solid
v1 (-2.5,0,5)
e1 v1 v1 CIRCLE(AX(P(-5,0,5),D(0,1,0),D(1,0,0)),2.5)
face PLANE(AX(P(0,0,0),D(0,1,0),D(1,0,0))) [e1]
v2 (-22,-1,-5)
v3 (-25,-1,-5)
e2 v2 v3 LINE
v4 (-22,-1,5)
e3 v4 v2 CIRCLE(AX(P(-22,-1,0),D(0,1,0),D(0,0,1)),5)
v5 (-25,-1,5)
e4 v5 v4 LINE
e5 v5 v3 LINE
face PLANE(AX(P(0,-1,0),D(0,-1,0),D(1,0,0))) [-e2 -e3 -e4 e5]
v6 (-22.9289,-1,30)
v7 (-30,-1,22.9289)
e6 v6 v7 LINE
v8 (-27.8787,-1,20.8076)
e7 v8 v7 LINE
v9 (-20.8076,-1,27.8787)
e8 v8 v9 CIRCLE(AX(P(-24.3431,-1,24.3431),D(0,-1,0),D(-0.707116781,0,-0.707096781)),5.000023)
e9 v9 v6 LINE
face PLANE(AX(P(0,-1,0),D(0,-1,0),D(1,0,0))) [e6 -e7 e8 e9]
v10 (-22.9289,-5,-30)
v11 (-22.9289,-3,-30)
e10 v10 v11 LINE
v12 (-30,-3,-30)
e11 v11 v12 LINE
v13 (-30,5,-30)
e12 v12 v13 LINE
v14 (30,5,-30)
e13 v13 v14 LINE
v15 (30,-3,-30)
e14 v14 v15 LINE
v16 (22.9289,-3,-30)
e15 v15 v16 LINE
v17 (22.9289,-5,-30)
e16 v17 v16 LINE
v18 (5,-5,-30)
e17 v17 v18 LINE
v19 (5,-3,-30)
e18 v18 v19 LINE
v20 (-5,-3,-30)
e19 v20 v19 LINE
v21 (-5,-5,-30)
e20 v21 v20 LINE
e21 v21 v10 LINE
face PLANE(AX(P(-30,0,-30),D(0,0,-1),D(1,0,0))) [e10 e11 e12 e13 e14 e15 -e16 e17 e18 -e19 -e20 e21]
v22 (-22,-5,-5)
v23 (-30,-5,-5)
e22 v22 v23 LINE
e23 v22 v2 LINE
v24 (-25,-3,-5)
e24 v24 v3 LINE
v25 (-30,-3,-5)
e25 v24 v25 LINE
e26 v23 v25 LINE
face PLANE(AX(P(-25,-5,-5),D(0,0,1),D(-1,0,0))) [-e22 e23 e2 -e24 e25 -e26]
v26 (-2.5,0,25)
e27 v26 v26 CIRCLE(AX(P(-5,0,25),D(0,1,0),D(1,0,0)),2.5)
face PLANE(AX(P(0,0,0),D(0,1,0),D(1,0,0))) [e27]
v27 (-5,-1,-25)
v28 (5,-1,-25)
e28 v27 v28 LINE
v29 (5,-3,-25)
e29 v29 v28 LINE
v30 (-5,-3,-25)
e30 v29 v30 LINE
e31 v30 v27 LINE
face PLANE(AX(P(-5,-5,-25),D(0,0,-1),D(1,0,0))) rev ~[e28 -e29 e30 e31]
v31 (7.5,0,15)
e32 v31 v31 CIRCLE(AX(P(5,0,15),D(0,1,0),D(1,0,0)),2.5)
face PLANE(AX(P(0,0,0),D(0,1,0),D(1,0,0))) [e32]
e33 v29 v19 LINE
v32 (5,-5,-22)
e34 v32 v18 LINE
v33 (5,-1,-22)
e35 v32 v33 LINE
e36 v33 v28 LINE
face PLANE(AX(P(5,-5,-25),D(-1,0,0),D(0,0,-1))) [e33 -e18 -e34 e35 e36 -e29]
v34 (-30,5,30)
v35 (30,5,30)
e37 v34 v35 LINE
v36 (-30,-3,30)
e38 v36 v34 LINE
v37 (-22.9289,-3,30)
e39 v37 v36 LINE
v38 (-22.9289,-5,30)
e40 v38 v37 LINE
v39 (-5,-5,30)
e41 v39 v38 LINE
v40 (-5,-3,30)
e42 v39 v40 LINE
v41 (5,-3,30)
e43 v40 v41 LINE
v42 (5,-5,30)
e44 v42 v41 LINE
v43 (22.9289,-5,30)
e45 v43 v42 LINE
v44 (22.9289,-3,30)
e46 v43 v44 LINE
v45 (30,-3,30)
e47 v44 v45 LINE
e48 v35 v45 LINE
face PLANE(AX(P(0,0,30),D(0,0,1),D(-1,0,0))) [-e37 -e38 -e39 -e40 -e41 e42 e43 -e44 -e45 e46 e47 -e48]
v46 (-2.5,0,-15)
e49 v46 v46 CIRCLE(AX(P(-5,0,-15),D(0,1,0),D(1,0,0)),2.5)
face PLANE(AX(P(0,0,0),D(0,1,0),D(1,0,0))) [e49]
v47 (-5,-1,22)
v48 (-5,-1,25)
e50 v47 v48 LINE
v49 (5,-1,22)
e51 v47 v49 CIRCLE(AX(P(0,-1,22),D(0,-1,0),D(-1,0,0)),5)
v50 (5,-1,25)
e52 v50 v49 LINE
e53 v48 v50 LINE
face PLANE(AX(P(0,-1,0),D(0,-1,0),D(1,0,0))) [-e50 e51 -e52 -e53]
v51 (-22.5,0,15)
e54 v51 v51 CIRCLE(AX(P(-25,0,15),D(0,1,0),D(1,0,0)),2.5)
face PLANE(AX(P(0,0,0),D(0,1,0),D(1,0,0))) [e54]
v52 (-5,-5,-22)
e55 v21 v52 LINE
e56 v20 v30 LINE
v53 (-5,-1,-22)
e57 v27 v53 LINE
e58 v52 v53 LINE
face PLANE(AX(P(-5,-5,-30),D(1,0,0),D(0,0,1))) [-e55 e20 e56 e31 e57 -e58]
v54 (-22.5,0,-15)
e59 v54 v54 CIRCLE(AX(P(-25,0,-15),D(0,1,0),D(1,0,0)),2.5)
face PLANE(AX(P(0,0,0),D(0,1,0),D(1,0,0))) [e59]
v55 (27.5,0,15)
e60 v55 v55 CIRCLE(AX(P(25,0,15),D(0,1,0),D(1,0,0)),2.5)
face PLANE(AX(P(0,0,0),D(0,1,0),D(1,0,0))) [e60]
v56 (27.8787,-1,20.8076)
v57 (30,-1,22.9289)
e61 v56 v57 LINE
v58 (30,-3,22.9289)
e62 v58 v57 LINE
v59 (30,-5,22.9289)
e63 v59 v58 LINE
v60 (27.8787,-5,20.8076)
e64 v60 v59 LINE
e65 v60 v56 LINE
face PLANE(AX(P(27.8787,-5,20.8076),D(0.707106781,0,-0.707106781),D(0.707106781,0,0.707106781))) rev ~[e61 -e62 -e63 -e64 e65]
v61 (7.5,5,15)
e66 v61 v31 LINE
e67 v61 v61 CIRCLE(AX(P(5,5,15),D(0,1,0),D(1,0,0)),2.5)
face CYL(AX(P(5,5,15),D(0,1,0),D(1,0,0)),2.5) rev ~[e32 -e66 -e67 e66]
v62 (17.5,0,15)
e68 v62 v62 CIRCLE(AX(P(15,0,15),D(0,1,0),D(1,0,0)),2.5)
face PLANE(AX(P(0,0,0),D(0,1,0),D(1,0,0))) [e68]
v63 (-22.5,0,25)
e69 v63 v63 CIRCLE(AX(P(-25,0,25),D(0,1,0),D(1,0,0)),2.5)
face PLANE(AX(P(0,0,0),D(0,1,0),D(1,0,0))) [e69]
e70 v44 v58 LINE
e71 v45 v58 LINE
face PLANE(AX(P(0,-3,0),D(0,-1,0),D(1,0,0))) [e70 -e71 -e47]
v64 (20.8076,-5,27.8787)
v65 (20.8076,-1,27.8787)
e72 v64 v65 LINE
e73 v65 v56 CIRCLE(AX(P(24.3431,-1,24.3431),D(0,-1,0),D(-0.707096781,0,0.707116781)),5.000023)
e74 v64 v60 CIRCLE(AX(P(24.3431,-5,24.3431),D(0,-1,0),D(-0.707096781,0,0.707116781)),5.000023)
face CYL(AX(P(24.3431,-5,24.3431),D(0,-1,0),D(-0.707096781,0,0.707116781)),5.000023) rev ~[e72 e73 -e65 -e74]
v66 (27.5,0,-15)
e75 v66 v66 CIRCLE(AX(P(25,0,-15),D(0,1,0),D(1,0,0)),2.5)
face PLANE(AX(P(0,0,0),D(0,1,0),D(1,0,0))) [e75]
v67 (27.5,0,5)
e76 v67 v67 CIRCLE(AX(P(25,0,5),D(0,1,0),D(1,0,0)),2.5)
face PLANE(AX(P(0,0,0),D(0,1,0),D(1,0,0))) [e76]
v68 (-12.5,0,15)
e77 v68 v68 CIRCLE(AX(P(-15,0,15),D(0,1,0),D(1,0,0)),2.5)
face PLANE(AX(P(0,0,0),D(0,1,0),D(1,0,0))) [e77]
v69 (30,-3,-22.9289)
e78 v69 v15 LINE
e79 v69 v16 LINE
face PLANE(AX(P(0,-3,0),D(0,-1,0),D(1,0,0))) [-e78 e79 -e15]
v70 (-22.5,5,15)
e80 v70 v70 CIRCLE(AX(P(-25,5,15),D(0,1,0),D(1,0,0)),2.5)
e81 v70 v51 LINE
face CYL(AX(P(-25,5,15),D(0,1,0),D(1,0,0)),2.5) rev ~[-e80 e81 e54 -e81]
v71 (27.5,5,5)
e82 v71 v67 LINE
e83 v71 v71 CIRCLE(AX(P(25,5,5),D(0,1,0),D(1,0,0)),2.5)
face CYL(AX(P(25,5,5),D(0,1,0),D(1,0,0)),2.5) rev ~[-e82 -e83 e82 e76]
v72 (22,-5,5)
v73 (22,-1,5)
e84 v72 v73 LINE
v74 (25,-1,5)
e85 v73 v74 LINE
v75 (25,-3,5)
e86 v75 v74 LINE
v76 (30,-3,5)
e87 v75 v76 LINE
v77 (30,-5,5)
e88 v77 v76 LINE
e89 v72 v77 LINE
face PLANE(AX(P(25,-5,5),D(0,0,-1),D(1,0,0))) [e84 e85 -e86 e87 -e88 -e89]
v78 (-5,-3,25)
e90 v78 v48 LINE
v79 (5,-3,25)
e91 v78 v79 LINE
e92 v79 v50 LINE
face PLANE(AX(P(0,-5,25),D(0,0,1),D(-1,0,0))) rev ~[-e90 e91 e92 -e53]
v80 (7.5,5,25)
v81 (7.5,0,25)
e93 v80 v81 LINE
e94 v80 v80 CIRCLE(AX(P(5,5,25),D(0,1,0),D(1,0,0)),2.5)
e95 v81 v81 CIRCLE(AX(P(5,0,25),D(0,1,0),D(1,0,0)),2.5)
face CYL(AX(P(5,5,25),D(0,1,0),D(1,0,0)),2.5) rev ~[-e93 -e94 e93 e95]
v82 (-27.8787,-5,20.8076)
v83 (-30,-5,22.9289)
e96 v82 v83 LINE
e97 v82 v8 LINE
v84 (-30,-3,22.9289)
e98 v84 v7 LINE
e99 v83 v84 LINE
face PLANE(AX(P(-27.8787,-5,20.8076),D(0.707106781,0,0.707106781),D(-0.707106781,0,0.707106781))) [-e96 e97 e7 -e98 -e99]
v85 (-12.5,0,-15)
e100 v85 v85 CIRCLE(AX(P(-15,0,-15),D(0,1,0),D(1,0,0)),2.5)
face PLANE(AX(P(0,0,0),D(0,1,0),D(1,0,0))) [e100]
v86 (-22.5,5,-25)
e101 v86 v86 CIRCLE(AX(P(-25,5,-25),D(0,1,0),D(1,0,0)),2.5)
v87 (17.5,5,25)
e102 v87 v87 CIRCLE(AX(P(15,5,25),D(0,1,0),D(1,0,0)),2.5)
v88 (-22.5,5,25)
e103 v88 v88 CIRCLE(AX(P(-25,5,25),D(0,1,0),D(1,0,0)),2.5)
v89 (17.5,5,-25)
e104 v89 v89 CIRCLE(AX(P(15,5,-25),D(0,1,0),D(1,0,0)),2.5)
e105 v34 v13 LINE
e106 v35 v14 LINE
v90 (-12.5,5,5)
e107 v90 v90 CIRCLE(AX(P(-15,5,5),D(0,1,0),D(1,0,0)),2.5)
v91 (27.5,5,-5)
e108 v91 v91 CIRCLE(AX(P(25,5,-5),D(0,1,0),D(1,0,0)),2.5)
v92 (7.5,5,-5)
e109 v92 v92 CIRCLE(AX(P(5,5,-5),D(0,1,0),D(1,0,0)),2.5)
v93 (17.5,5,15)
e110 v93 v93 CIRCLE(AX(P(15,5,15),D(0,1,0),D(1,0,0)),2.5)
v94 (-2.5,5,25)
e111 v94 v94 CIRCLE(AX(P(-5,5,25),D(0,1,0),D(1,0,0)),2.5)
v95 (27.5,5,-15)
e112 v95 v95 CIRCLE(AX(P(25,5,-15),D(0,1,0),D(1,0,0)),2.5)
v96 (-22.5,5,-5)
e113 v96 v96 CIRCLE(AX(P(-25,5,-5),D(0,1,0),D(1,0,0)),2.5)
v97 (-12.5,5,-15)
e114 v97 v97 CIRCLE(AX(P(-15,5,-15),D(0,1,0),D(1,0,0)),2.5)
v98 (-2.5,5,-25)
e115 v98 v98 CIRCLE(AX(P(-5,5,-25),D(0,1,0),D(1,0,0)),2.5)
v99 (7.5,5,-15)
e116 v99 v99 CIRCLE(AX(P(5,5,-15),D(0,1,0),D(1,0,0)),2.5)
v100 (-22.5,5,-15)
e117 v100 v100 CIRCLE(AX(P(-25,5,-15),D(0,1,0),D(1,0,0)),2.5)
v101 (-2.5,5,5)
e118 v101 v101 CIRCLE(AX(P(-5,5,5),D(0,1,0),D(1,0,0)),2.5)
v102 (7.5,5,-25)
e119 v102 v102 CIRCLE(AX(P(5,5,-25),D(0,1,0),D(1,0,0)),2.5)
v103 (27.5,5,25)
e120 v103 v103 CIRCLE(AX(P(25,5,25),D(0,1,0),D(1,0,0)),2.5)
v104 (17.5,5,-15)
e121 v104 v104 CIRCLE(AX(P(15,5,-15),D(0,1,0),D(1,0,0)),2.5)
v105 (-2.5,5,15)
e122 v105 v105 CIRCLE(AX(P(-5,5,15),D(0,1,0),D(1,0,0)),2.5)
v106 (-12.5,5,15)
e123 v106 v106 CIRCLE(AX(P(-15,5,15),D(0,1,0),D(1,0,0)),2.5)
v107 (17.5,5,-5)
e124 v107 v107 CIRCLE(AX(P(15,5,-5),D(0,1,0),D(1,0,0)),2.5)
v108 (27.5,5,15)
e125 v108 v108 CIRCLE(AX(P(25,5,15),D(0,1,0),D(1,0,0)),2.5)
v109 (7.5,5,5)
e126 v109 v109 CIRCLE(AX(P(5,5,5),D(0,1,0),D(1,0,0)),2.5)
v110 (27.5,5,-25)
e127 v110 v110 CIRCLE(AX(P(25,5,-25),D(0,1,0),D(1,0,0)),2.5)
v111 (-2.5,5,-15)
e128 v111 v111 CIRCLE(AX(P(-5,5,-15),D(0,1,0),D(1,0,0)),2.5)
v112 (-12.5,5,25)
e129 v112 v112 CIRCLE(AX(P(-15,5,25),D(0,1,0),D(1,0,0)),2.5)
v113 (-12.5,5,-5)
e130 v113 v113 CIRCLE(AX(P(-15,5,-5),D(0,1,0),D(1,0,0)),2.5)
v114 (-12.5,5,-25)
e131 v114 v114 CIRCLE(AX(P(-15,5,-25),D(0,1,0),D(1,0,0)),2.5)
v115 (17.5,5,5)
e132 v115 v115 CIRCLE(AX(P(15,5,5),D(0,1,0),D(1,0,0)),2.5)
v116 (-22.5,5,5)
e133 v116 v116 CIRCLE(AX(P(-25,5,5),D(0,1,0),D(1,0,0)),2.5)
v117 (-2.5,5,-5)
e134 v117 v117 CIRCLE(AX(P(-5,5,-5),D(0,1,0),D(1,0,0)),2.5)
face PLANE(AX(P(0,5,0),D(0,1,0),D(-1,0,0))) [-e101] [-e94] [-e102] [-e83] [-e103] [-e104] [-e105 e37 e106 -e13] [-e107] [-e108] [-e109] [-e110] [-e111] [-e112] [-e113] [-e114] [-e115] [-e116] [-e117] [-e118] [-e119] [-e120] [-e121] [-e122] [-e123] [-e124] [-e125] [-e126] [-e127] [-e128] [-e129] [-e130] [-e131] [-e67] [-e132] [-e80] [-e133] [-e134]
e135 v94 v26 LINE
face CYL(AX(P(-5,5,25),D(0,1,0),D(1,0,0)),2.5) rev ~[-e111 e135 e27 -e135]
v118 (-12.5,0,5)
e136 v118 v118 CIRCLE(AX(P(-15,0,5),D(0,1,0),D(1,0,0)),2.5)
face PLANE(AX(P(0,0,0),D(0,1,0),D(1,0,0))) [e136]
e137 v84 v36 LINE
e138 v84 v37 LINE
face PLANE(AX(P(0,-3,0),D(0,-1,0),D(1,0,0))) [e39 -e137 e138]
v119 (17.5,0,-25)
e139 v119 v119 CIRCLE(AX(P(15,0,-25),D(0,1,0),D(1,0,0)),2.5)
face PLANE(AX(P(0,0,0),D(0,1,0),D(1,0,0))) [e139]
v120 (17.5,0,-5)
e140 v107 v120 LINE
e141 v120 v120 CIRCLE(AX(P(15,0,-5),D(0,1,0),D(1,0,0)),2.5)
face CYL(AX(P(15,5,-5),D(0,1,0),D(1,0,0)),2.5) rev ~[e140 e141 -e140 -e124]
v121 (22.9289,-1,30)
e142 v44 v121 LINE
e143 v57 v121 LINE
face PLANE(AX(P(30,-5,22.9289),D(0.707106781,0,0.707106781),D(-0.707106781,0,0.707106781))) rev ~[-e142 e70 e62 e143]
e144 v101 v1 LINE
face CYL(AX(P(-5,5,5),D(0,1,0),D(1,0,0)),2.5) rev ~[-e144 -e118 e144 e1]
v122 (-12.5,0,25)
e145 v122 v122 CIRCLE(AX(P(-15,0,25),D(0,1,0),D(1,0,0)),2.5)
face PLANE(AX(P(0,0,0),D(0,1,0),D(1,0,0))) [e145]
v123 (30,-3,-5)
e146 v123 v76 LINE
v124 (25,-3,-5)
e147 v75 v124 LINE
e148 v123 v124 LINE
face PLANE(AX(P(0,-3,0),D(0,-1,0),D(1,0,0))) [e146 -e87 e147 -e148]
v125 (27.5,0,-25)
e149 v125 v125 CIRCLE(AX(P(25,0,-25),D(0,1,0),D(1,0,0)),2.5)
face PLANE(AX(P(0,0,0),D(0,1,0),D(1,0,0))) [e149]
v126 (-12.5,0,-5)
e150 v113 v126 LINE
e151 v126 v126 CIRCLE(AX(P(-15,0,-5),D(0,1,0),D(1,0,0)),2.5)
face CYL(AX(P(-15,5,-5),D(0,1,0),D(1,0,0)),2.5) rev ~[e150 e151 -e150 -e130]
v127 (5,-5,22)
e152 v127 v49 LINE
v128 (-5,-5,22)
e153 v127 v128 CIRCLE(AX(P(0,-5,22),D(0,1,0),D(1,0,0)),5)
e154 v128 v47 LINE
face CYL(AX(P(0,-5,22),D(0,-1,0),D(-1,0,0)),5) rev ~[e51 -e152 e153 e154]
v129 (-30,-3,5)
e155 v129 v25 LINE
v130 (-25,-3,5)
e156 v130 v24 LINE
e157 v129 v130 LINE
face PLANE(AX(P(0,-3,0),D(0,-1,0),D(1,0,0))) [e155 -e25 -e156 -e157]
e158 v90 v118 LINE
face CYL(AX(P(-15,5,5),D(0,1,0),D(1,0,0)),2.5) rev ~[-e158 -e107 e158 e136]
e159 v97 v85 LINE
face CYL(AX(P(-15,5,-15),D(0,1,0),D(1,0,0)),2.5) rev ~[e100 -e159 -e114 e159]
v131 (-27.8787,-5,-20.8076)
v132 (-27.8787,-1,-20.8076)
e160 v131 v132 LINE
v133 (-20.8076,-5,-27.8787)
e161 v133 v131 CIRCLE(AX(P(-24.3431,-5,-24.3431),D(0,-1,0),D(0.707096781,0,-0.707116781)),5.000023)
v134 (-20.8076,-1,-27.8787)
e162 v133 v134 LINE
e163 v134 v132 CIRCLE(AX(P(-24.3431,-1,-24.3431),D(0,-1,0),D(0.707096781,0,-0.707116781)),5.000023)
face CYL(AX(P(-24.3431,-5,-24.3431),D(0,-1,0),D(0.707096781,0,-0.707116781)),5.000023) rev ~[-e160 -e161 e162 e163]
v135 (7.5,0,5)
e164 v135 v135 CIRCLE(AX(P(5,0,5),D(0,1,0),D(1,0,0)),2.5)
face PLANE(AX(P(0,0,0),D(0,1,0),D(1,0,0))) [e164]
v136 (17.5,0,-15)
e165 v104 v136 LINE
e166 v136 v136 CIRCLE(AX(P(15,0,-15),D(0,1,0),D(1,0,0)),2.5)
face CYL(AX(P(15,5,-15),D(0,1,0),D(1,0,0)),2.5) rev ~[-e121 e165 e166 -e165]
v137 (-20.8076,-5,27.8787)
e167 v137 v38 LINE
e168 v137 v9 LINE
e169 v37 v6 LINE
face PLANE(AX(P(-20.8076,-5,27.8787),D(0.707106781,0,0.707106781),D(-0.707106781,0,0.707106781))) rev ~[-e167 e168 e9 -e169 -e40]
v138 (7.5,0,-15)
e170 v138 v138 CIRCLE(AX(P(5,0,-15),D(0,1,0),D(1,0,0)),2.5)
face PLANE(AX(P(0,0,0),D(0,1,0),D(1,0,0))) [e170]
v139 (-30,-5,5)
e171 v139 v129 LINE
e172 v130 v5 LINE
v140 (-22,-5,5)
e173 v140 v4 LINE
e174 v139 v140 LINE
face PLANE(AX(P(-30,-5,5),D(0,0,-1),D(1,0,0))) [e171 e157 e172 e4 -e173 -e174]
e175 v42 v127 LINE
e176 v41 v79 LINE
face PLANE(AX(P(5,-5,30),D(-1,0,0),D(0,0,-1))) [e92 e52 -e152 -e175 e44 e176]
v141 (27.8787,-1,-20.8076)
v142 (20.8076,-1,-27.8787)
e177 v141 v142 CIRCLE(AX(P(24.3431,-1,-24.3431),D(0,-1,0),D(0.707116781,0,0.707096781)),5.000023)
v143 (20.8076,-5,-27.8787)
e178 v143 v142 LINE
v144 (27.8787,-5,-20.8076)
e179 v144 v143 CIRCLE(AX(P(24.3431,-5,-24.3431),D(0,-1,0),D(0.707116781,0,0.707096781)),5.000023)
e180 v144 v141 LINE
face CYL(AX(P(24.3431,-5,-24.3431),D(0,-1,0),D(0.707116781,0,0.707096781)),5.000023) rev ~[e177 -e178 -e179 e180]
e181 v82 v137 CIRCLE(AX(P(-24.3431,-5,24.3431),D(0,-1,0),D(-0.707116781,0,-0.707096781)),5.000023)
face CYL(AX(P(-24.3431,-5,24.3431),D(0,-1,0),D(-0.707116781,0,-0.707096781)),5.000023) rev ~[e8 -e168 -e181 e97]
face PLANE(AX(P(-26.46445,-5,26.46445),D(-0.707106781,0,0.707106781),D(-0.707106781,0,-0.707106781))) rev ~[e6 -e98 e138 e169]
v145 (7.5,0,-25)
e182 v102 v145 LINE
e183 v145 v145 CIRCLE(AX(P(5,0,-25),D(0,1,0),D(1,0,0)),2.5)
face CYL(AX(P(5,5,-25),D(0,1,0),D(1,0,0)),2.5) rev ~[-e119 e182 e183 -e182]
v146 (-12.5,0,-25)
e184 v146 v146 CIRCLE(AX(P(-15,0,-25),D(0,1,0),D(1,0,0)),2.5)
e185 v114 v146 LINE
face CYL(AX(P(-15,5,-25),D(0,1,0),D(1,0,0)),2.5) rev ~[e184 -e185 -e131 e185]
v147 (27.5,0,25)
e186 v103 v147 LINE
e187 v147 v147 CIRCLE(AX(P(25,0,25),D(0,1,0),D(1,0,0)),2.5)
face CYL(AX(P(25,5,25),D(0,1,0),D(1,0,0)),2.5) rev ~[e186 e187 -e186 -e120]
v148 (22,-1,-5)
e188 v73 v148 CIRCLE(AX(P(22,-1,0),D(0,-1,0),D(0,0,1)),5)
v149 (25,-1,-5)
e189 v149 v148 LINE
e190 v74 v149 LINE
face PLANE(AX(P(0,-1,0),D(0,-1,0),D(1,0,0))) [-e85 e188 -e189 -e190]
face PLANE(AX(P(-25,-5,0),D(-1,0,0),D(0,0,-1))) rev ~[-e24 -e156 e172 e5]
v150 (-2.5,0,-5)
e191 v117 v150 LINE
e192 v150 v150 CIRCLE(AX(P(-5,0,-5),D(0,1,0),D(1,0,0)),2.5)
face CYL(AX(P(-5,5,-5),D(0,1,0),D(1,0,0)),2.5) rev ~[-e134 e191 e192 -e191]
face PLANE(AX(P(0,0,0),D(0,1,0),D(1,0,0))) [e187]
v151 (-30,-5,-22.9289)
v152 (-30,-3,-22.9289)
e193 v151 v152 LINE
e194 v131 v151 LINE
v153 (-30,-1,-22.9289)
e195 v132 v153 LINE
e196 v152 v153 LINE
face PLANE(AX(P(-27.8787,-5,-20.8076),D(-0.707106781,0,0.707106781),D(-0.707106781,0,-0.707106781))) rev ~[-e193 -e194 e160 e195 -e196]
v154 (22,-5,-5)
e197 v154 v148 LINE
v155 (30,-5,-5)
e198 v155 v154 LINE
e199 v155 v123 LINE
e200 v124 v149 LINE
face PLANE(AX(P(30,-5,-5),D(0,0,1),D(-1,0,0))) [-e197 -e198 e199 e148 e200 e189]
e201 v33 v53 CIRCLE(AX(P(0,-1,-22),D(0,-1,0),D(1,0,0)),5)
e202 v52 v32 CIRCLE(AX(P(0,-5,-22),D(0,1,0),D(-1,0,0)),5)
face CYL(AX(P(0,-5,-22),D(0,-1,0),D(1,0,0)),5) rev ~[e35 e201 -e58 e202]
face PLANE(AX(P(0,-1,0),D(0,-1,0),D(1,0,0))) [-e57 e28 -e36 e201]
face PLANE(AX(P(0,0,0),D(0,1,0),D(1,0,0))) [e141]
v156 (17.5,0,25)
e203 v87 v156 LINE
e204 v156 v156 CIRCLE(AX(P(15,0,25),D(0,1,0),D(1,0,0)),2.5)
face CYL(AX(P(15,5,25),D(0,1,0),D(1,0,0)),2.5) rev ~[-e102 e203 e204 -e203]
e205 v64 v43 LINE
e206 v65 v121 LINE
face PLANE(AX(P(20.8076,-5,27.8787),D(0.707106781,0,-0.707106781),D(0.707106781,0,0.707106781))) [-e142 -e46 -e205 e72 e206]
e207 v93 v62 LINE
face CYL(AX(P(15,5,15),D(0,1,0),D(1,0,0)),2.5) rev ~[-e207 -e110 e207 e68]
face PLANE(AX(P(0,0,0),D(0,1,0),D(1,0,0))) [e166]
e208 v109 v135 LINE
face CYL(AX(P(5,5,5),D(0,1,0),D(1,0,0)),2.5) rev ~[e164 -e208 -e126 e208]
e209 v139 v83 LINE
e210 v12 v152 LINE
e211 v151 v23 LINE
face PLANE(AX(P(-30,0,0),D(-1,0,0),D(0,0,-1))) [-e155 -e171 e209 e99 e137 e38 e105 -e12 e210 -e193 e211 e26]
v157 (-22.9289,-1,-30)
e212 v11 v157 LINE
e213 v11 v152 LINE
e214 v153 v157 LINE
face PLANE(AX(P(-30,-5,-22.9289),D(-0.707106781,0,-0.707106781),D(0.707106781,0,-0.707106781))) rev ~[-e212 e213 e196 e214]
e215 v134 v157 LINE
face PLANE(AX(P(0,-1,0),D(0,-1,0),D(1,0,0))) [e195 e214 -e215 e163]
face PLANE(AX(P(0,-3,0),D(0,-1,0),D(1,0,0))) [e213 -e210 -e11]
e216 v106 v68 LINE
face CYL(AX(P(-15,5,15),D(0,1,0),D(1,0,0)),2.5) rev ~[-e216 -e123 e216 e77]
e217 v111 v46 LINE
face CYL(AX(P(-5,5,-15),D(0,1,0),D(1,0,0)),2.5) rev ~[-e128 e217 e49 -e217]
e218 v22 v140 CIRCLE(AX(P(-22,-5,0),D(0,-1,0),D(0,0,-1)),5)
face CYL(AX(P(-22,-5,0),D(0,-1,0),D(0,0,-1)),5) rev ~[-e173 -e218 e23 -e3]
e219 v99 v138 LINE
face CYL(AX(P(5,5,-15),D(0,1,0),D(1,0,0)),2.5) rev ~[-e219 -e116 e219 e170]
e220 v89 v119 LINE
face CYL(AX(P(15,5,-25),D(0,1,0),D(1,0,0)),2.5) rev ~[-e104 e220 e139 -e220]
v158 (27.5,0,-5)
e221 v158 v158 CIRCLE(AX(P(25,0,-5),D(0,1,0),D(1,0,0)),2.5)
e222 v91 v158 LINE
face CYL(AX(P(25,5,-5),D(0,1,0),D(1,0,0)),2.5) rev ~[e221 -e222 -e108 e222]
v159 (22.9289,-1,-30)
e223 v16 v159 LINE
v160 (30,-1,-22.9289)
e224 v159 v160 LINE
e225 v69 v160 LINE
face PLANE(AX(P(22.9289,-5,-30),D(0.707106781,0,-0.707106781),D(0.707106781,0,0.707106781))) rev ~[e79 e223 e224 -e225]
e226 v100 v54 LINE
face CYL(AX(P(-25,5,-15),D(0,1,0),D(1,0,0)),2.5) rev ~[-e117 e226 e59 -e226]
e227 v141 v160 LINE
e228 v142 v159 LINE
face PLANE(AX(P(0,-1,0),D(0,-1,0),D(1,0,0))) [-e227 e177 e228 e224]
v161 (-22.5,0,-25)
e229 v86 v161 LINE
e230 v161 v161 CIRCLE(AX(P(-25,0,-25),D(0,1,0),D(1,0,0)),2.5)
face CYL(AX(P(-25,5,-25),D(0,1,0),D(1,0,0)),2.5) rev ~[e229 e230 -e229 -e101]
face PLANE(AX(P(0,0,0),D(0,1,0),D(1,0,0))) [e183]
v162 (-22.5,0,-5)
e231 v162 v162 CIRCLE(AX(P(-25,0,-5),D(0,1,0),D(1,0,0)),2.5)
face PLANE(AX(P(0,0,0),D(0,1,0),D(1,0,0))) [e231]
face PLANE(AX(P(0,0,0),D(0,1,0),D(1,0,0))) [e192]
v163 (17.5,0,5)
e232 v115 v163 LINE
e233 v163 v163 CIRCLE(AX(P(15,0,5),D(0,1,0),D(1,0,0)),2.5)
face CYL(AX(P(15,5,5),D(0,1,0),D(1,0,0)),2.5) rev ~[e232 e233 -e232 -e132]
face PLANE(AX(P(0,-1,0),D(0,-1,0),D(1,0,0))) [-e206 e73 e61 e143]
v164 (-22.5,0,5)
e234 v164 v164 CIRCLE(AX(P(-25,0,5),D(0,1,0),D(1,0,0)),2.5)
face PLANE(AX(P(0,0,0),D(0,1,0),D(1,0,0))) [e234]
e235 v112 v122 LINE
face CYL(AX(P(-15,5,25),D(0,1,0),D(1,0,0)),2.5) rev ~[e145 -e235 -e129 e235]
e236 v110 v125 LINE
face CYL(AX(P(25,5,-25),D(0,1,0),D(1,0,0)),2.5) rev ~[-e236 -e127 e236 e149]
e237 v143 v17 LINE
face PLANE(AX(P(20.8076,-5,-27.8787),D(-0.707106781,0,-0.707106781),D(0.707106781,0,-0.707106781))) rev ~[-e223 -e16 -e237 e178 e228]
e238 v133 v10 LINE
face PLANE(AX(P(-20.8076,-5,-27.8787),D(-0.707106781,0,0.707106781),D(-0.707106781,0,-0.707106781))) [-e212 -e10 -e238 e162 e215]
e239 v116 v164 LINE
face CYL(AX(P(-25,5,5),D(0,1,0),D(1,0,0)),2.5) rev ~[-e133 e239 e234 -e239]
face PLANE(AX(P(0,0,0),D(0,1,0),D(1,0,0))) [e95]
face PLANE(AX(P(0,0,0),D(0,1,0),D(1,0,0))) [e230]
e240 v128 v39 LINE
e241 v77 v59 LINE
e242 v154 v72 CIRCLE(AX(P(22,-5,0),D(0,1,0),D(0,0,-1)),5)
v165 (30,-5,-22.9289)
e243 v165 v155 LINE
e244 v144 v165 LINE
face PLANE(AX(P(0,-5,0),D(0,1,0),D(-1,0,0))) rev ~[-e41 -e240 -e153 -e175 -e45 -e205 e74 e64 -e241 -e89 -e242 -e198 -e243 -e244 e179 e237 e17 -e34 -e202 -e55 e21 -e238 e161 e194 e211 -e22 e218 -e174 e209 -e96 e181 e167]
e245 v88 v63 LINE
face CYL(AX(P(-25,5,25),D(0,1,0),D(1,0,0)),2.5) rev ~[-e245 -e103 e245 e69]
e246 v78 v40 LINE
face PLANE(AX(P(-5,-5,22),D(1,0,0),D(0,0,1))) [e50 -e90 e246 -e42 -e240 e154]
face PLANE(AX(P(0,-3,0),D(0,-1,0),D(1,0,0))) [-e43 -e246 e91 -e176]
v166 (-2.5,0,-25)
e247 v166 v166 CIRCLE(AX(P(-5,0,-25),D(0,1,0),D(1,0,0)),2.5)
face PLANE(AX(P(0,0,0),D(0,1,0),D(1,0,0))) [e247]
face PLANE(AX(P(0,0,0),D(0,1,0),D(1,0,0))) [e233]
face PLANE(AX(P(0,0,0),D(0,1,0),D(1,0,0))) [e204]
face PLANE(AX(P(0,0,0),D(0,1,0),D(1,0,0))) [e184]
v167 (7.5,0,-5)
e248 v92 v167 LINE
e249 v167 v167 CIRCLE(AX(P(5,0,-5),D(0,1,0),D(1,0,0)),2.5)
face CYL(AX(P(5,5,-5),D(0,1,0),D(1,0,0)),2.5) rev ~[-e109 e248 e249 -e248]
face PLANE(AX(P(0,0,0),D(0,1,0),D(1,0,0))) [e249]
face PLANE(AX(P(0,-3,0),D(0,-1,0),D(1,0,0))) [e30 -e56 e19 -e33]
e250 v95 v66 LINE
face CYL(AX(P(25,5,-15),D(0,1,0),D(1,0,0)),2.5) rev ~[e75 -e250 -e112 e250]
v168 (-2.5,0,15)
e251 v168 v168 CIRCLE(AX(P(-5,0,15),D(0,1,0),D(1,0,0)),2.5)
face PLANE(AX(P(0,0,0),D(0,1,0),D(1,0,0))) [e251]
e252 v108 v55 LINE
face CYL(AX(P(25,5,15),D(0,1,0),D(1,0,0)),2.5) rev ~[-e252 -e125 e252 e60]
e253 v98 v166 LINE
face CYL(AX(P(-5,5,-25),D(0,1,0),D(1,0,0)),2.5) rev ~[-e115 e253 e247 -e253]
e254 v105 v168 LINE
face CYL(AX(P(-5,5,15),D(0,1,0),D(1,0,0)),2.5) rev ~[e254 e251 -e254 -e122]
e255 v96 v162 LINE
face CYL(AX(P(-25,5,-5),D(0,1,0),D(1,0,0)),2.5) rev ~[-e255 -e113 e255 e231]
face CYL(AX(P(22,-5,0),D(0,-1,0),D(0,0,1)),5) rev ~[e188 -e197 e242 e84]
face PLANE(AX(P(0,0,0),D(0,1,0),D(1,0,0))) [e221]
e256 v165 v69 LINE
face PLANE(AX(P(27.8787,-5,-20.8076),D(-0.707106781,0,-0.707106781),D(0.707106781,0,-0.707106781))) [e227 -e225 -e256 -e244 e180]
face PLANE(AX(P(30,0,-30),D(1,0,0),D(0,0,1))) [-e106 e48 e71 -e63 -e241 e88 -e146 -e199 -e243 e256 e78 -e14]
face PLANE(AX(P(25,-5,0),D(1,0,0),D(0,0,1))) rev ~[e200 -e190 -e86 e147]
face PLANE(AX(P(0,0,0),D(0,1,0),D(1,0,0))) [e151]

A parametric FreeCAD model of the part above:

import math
import FreeCAD as App
import Part
import Sketcher

doc = App.newDocument("Part")
params = doc.addObject("Spreadsheet::Sheet", "Params")
for row, (alias, value) in enumerate([
    ("sketch1_width", "60 mm"),
    ("pad1_length", "10 mm"),
    ("sketch2_width", "5 mm"),
    ("sketch2_width2", "10 mm"),
    ("sketch2_length", "10 mm"),
    ("pocket1_length", "2 mm"),
    ("sketch3_radius", "5 mm"),
    ("sketch3_width", "3 mm"),
    ("sketch3_length", "3 mm"),
    ("pocket2_length", "4 mm"),
    ("sketch4_diameter", "5 mm"),
    ("pocket3_length", "5 mm"),
], start=1):
    params.set(f"A{row}", alias)
    params.set(f"B{row}", "=" + value)
    params.setAlias(f"B{row}", alias)

body = doc.addObject("PartDesign::Body", "Body")

# Sketch on XZ plane
sketch1 = body.newObject("Sketcher::SketchObject", "Sketch")
sketch1.AttachmentSupport = (doc.getObject("XZ_Plane"), [""])
sketch1.MapMode = "FlatFace"
sketch1.addGeometry([
    Part.LineSegment(App.Vector(-30, -30, 0), App.Vector(-30, 30, 0)),
    Part.LineSegment(App.Vector(-30, 30, 0), App.Vector(30, 30, 0)),
    Part.LineSegment(App.Vector(30, 30, 0), App.Vector(30, -30, 0)),
    Part.LineSegment(App.Vector(30, -30, 0), App.Vector(-30, -30, 0)),
], False)
sketch1.addConstraint([
    Sketcher.Constraint("Coincident", 0, 2, 1, 1),
    Sketcher.Constraint("Coincident", 1, 2, 2, 1),
    Sketcher.Constraint("Coincident", 2, 2, 3, 1),
    Sketcher.Constraint("Coincident", 3, 2, 0, 1),
    Sketcher.Constraint("Vertical", 0),
    Sketcher.Constraint("Horizontal", 1),
    Sketcher.Constraint("Vertical", 2),
    Sketcher.Constraint("Horizontal", 3),
    Sketcher.Constraint("Symmetric", 0, 2, 2, 2, -1, 1),
    Sketcher.Constraint("Equal", 3, 0),
    Sketcher.Constraint("DistanceX", 1, 1, 1, 2, 60.0),
])
sketch1.setExpression("Constraints[10]", "Params.sketch1_width")
pad1 = body.newObject("PartDesign::Pad", "Pad")
pad1.Profile = sketch1
pad1.setExpression("Length", "Params.pad1_length")
pad1.Midplane = True

# Sketch on XZ plane
sketch2 = body.newObject("Sketcher::SketchObject", "Sketch001")
sketch2.AttachmentSupport = (doc.getObject("XZ_Plane"), [""])
sketch2.MapMode = "FlatFace"
sketch2.AttachmentOffset = App.Placement(App.Vector(0, 0, 5), App.Rotation())
sketch2.addGeometry([
    Part.LineSegment(App.Vector(-30, 30, 0), App.Vector(-30, 23, 0)),  # 0
    Part.LineSegment(App.Vector(-30, 23, 0), App.Vector(-23, 30, 0)),  # 1
    Part.LineSegment(App.Vector(-23, 30, 0), App.Vector(-30, 30, 0)),  # 2
    Part.LineSegment(App.Vector(30, 23, 0), App.Vector(30, 30, 0)),  # 3
    Part.LineSegment(App.Vector(30, 30, 0), App.Vector(23, 30, 0)),  # 4
    Part.LineSegment(App.Vector(23, 30, 0), App.Vector(30, 23, 0)),  # 5
    Part.LineSegment(App.Vector(-23, -30, 0), App.Vector(-30, -23, 0)),  # 6
    Part.LineSegment(App.Vector(-30, -23, 0), App.Vector(-30, -30, 0)),  # 7
    Part.LineSegment(App.Vector(-30, -30, 0), App.Vector(-23, -30, 0)),  # 8
    Part.LineSegment(App.Vector(-30, -5, 0), App.Vector(-25, -5, 0)),  # 9
    Part.LineSegment(App.Vector(-25, -5, 0), App.Vector(-25, 5, 0)),  # 10
    Part.LineSegment(App.Vector(-25, 5, 0), App.Vector(-30, 5, 0)),  # 11
    Part.LineSegment(App.Vector(-30, 5, 0), App.Vector(-30, -5, 0)),  # 12
    Part.LineSegment(App.Vector(-5, -25, 0), App.Vector(-5, -30, 0)),  # 13
    Part.LineSegment(App.Vector(-5, -30, 0), App.Vector(5, -30, 0)),  # 14
    Part.LineSegment(App.Vector(5, -30, 0), App.Vector(5, -25, 0)),  # 15
    Part.LineSegment(App.Vector(5, -25, 0), App.Vector(-5, -25, 0)),  # 16
    Part.LineSegment(App.Vector(23, -30, 0), App.Vector(30, -30, 0)),  # 17
    Part.LineSegment(App.Vector(30, -30, 0), App.Vector(30, -23, 0)),  # 18
    Part.LineSegment(App.Vector(30, -23, 0), App.Vector(23, -30, 0)),  # 19
    Part.LineSegment(App.Vector(25, -5, 0), App.Vector(30, -5, 0)),  # 20
    Part.LineSegment(App.Vector(30, -5, 0), App.Vector(30, 5, 0)),  # 21
    Part.LineSegment(App.Vector(30, 5, 0), App.Vector(25, 5, 0)),  # 22
    Part.LineSegment(App.Vector(25, 5, 0), App.Vector(25, -5, 0)),  # 23
    Part.LineSegment(App.Vector(-5, 25, 0), App.Vector(5, 25, 0)),  # 24
    Part.LineSegment(App.Vector(5, 25, 0), App.Vector(5, 30, 0)),  # 25
    Part.LineSegment(App.Vector(5, 30, 0), App.Vector(-5, 30, 0)),  # 26
    Part.LineSegment(App.Vector(-5, 30, 0), App.Vector(-5, 25, 0)),  # 27
], False)
sketch2.addConstraint([
    Sketcher.Constraint("Coincident", 0, 2, 1, 1),
    Sketcher.Constraint("Coincident", 1, 2, 2, 1),
    Sketcher.Constraint("Coincident", 2, 2, 0, 1),
    Sketcher.Constraint("Coincident", 3, 2, 4, 1),
    Sketcher.Constraint("Coincident", 4, 2, 5, 1),
    Sketcher.Constraint("Coincident", 5, 2, 3, 1),
    Sketcher.Constraint("Coincident", 6, 2, 7, 1),
    Sketcher.Constraint("Coincident", 7, 2, 8, 1),
    Sketcher.Constraint("Coincident", 8, 2, 6, 1),
    Sketcher.Constraint("Coincident", 9, 2, 10, 1),
    Sketcher.Constraint("Coincident", 10, 2, 11, 1),
    Sketcher.Constraint("Coincident", 11, 2, 12, 1),
    Sketcher.Constraint("Coincident", 12, 2, 9, 1),
    Sketcher.Constraint("Coincident", 13, 2, 14, 1),
    Sketcher.Constraint("Coincident", 14, 2, 15, 1),
    Sketcher.Constraint("Coincident", 15, 2, 16, 1),
    Sketcher.Constraint("Coincident", 16, 2, 13, 1),
    Sketcher.Constraint("Coincident", 17, 2, 18, 1),
    Sketcher.Constraint("Coincident", 18, 2, 19, 1),
    Sketcher.Constraint("Coincident", 19, 2, 17, 1),
    Sketcher.Constraint("Coincident", 20, 2, 21, 1),
    Sketcher.Constraint("Coincident", 21, 2, 22, 1),
    Sketcher.Constraint("Coincident", 22, 2, 23, 1),
    Sketcher.Constraint("Coincident", 23, 2, 20, 1),
    Sketcher.Constraint("Coincident", 24, 2, 25, 1),
    Sketcher.Constraint("Coincident", 25, 2, 26, 1),
    Sketcher.Constraint("Coincident", 26, 2, 27, 1),
    Sketcher.Constraint("Coincident", 27, 2, 24, 1),
    Sketcher.Constraint("Vertical", 0),
    Sketcher.Constraint("Horizontal", 2),
    Sketcher.Constraint("Vertical", 3),
    Sketcher.Constraint("Horizontal", 4),
    Sketcher.Constraint("Vertical", 7),
    Sketcher.Constraint("Horizontal", 8),
    Sketcher.Constraint("Horizontal", 9),
    Sketcher.Constraint("Vertical", 10),
    Sketcher.Constraint("Horizontal", 11),
    Sketcher.Constraint("Vertical", 12),
    Sketcher.Constraint("Vertical", 13),
    Sketcher.Constraint("Horizontal", 14),
    Sketcher.Constraint("Vertical", 15),
    Sketcher.Constraint("Horizontal", 16),
    Sketcher.Constraint("Horizontal", 17),
    Sketcher.Constraint("Vertical", 18),
    Sketcher.Constraint("Horizontal", 20),
    Sketcher.Constraint("Vertical", 21),
    Sketcher.Constraint("Horizontal", 22),
    Sketcher.Constraint("Vertical", 23),
    Sketcher.Constraint("Horizontal", 24),
    Sketcher.Constraint("Vertical", 25),
    Sketcher.Constraint("Horizontal", 26),
    Sketcher.Constraint("Vertical", 27),
    Sketcher.Constraint("Symmetric", 5, 2, 6, 2, -1, 1),
    Sketcher.Constraint("Symmetric", 4, 2, 8, 2, -1, 1),
    Sketcher.Constraint("Symmetric", 2, 2, 17, 2, -1, 1),
    Sketcher.Constraint("Symmetric", 11, 2, 20, 2, -1, 1),
    Sketcher.Constraint("Symmetric", 9, 2, 22, 2, -1, 1),
    Sketcher.Constraint("Symmetric", 16, 2, 24, 2, -1, 1),
    Sketcher.Constraint("Symmetric", 14, 2, 26, 2, -1, 1),
    Sketcher.Constraint("Symmetric", 2, 2, 3, 2, -2),
    Sketcher.Constraint("Perpendicular", 1, 5),
    Sketcher.Constraint("Perpendicular", 6, 19),
    Sketcher.Constraint("Horizontal", 0, 2, 5, 2),
    Sketcher.Constraint("Horizontal", 8, 2, 13, 2),
    Sketcher.Constraint("Horizontal", 6, 2, 18, 2),
    Sketcher.Constraint("Horizontal", 12, 2, 20, 2),
    Sketcher.Constraint("Vertical", 1, 2, 8, 2),
    Sketcher.Constraint("Vertical", 7, 2, 11, 2),
    Sketcher.Constraint("Vertical", 15, 2, 24, 2),
    Sketcher.Constraint("Equal", 26, 10),
    Sketcher.Constraint("Equal", 22, 13),
    Sketcher.Constraint("DistanceX", 9, 1, 9, 2, 5.0),
    Sketcher.Constraint("DistanceX", 14, 1, 14, 2, 10.0),
    Sketcher.Constraint("Distance", 1, 10.0),
    Sketcher.Constraint("DistanceX", 0, 2, -1, 1, 30.0),
    Sketcher.Constraint("DistanceY", -1, 1, 1, 2, 30.0),
])
sketch2.setExpression("Constraints[71]", "Params.sketch2_width")
sketch2.setExpression("Constraints[72]", "Params.sketch2_width2")
sketch2.setExpression("Constraints[73]", "Params.sketch2_length")
pocket1 = body.newObject("PartDesign::Pocket", "Pocket")
pocket1.Profile = sketch2
pocket1.setExpression("Length", "Params.pocket1_length")

# Sketch on XZ plane
sketch3 = body.newObject("Sketcher::SketchObject", "Sketch002")
sketch3.AttachmentSupport = (doc.getObject("XZ_Plane"), [""])
sketch3.MapMode = "FlatFace"
sketch3.AttachmentOffset = App.Placement(App.Vector(0, 0, 5), App.Rotation())
sketch3.addGeometry([
    Part.LineSegment(App.Vector(-30, 22.9, 0), App.Vector(-27.9, 20.8, 0)),  # 0
    Part.ArcOfCircle(Part.Circle(App.Vector(-24.3, 24.3, 0), App.Vector(0, 0, 1), 5), math.radians(-135), math.radians(45)),  # 1
    Part.LineSegment(App.Vector(-20.8, 27.9, 0), App.Vector(-22.9, 30, 0)),  # 2
    Part.LineSegment(App.Vector(-22.9, 30, 0), App.Vector(-30, 22.9, 0)),  # 3
    Part.ArcOfCircle(Part.Circle(App.Vector(0, 22, 0), App.Vector(0, 0, 1), 5), math.radians(180), math.radians(360)),  # 4
    Part.LineSegment(App.Vector(5, 22, 0), App.Vector(5, 25, 0)),  # 5
    Part.LineSegment(App.Vector(5, 25, 0), App.Vector(-5, 25, 0)),  # 6
    Part.LineSegment(App.Vector(-5, 25, 0), App.Vector(-5, 22, 0)),  # 7
    Part.LineSegment(App.Vector(27.9, 20.8, 0), App.Vector(30, 22.9, 0)),  # 8
    Part.LineSegment(App.Vector(30, 22.9, 0), App.Vector(22.9, 30, 0)),  # 9
    Part.LineSegment(App.Vector(22.9, 30, 0), App.Vector(20.8, 27.9, 0)),  # 10
    Part.ArcOfCircle(Part.Circle(App.Vector(24.3, 24.3, 0), App.Vector(0, 0, 1), 5), math.radians(135), math.radians(315)),  # 11
    Part.LineSegment(App.Vector(-27.9, -20.8, 0), App.Vector(-30, -22.9, 0)),  # 12
    Part.LineSegment(App.Vector(-30, -22.9, 0), App.Vector(-22.9, -30, 0)),  # 13
    Part.LineSegment(App.Vector(-22.9, -30, 0), App.Vector(-20.8, -27.9, 0)),  # 14
    Part.ArcOfCircle(Part.Circle(App.Vector(-24.3, -24.3, 0), App.Vector(0, 0, 1), 5), math.radians(-45), math.radians(135)),  # 15
    Part.LineSegment(App.Vector(-25, -5, 0), App.Vector(-22, -5, 0)),  # 16
    Part.ArcOfCircle(Part.Circle(App.Vector(-22, 0, 0), App.Vector(0, 0, 1), 5), math.radians(-90), math.radians(90)),  # 17
    Part.LineSegment(App.Vector(-22, 5, 0), App.Vector(-25, 5, 0)),  # 18
    Part.LineSegment(App.Vector(-25, 5, 0), App.Vector(-25, -5, 0)),  # 19
    Part.LineSegment(App.Vector(-5, -22, 0), App.Vector(-5, -25, 0)),  # 20
    Part.LineSegment(App.Vector(-5, -25, 0), App.Vector(5, -25, 0)),  # 21
    Part.LineSegment(App.Vector(5, -25, 0), App.Vector(5, -22, 0)),  # 22
    Part.ArcOfCircle(Part.Circle(App.Vector(0, -22, 0), App.Vector(0, 0, 1), 5), math.radians(0), math.radians(180)),  # 23
    Part.LineSegment(App.Vector(20.8, -27.9, 0), App.Vector(22.9, -30, 0)),  # 24
    Part.LineSegment(App.Vector(22.9, -30, 0), App.Vector(30, -22.9, 0)),  # 25
    Part.LineSegment(App.Vector(30, -22.9, 0), App.Vector(27.9, -20.8, 0)),  # 26
    Part.ArcOfCircle(Part.Circle(App.Vector(24.3, -24.3, 0), App.Vector(0, 0, 1), 5), math.radians(45), math.radians(225)),  # 27
    Part.ArcOfCircle(Part.Circle(App.Vector(22, 0, 0), App.Vector(0, 0, 1), 5), math.radians(90), math.radians(270)),  # 28
    Part.LineSegment(App.Vector(22, -5, 0), App.Vector(25, -5, 0)),  # 29
    Part.LineSegment(App.Vector(25, -5, 0), App.Vector(25, 5, 0)),  # 30
    Part.LineSegment(App.Vector(25, 5, 0), App.Vector(22, 5, 0)),  # 31
], False)
sketch3.addConstraint([
    Sketcher.Constraint("Tangent", 0, 2, 1, 1),
    Sketcher.Constraint("Tangent", 1, 2, 2, 1),
    Sketcher.Constraint("Coincident", 2, 2, 3, 1),
    Sketcher.Constraint("Coincident", 3, 2, 0, 1),
    Sketcher.Constraint("Tangent", 4, 2, 5, 1),
    Sketcher.Constraint("Coincident", 5, 2, 6, 1),
    Sketcher.Constraint("Coincident", 6, 2, 7, 1),
    Sketcher.Constraint("Tangent", 7, 2, 4, 1),
    Sketcher.Constraint("Coincident", 8, 2, 9, 1),
    Sketcher.Constraint("Coincident", 9, 2, 10, 1),
    Sketcher.Constraint("Tangent", 10, 2, 11, 1),
    Sketcher.Constraint("Tangent", 11, 2, 8, 1),
    Sketcher.Constraint("Coincident", 12, 2, 13, 1),
    Sketcher.Constraint("Coincident", 13, 2, 14, 1),
    Sketcher.Constraint("Tangent", 14, 2, 15, 1),
    Sketcher.Constraint("Tangent", 15, 2, 12, 1),
    Sketcher.Constraint("Tangent", 16, 2, 17, 1),
    Sketcher.Constraint("Tangent", 17, 2, 18, 1),
    Sketcher.Constraint("Coincident", 18, 2, 19, 1),
    Sketcher.Constraint("Coincident", 19, 2, 16, 1),
    Sketcher.Constraint("Coincident", 20, 2, 21, 1),
    Sketcher.Constraint("Coincident", 21, 2, 22, 1),
    Sketcher.Constraint("Tangent", 22, 2, 23, 1),
    Sketcher.Constraint("Tangent", 23, 2, 20, 1),
    Sketcher.Constraint("Coincident", 24, 2, 25, 1),
    Sketcher.Constraint("Coincident", 25, 2, 26, 1),
    Sketcher.Constraint("Tangent", 26, 2, 27, 1),
    Sketcher.Constraint("Tangent", 27, 2, 24, 1),
    Sketcher.Constraint("Tangent", 28, 2, 29, 1),
    Sketcher.Constraint("Coincident", 29, 2, 30, 1),
    Sketcher.Constraint("Coincident", 30, 2, 31, 1),
    Sketcher.Constraint("Tangent", 31, 2, 28, 1),
    Sketcher.Constraint("Vertical", 5),
    Sketcher.Constraint("Horizontal", 6),
    Sketcher.Constraint("Vertical", 7),
    Sketcher.Constraint("Horizontal", 16),
    Sketcher.Constraint("Horizontal", 18),
    Sketcher.Constraint("Vertical", 19),
    Sketcher.Constraint("Vertical", 20),
    Sketcher.Constraint("Horizontal", 21),
    Sketcher.Constraint("Vertical", 22),
    Sketcher.Constraint("Horizontal", 29),
    Sketcher.Constraint("Vertical", 30),
    Sketcher.Constraint("Horizontal", 31),
    Sketcher.Constraint("Equal", 1, 4),
    Sketcher.Constraint("Equal", 4, 11),
    Sketcher.Constraint("Equal", 11, 15),
    Sketcher.Constraint("Equal", 15, 17),
    Sketcher.Constraint("Equal", 17, 23),
    Sketcher.Constraint("Equal", 23, 27),
    Sketcher.Constraint("Equal", 27, 28),
    Sketcher.Constraint("Symmetric", 11, 3, 15, 3, -1, 1),
    Sketcher.Constraint("Symmetric", 4, 3, 23, 3, -1, 1),
    Sketcher.Constraint("Symmetric", 1, 3, 27, 3, -1, 1),
    Sketcher.Constraint("Symmetric", 17, 3, 28, 3, -1, 1),
    Sketcher.Constraint("Symmetric", 8, 2, 12, 2, -1, 1),
    Sketcher.Constraint("Symmetric", 9, 2, 13, 2, -1, 1),
    Sketcher.Constraint("Symmetric", 2, 2, 24, 2, -1, 1),
    Sketcher.Constraint("Symmetric", 3, 2, 25, 2, -1, 1),
    Sketcher.Constraint("Symmetric", 1, 3, 11, 3, -2),
    Sketcher.Constraint("Symmetric", 3, 2, 8, 2, -2),
    Sketcher.Constraint("Symmetric", 2, 2, 9, 2, -2),
    Sketcher.Constraint("Symmetric", 19, 2, 29, 2, -2),
    Sketcher.Constraint("Symmetric", 6, 2, 20, 2, -1),
    Sketcher.Constraint("Parallel", 0, 2),
    Sketcher.Constraint("Perpendicular", 2, 3),
    Sketcher.Constraint("Parallel", 3, 8),
    Sketcher.Constraint("Equal", 31, 5),
    Sketcher.Constraint("Radius", 1, 5.0),
    Sketcher.Constraint("DistanceX", 16, 1, 16, 2, 3.0),
    Sketcher.Constraint("Distance", 0, 3.0),
    Sketcher.Constraint("DistanceY", 4, 3, 2, 2, 8.0),
    Sketcher.Constraint("DistanceX", 3, 2, 17, 3, 8.0),
    Sketcher.Constraint("DistanceY", -1, 1, 4, 3, 22.0),
    Sketcher.Constraint("DistanceX", 17, 3, -1, 1, 22.0),
])
sketch3.setExpression("Constraints[68]", "Params.sketch3_radius")
sketch3.setExpression("Constraints[69]", "Params.sketch3_width")
sketch3.setExpression("Constraints[70]", "Params.sketch3_length")
pocket2 = body.newObject("PartDesign::Pocket", "Pocket001")
pocket2.Profile = sketch3
pocket2.setExpression("Length", "Params.pocket2_length")

# Sketch on XZ plane
sketch4 = body.newObject("Sketcher::SketchObject", "Sketch003")
sketch4.AttachmentSupport = (doc.getObject("XZ_Plane"), [""])
sketch4.MapMode = "FlatFace"
sketch4.AttachmentOffset = App.Placement(App.Vector(0, 0, -5), App.Rotation())
sketch4.addGeometry([
    Part.Circle(App.Vector(-25, -25, 0), App.Vector(0, 0, 1), 2.5),  # 0
    Part.Circle(App.Vector(-25, -15, 0), App.Vector(0, 0, 1), 2.5),  # 1
    Part.Circle(App.Vector(-25, -5, 0), App.Vector(0, 0, 1), 2.5),  # 2
    Part.Circle(App.Vector(-25, 5, 0), App.Vector(0, 0, 1), 2.5),  # 3
    Part.Circle(App.Vector(-25, 15, 0), App.Vector(0, 0, 1), 2.5),  # 4
    Part.Circle(App.Vector(-15, -25, 0), App.Vector(0, 0, 1), 2.5),  # 5
    Part.Circle(App.Vector(-15, -15, 0), App.Vector(0, 0, 1), 2.5),  # 6
    Part.Circle(App.Vector(-15, -5, 0), App.Vector(0, 0, 1), 2.5),  # 7
    Part.Circle(App.Vector(-15, 5, 0), App.Vector(0, 0, 1), 2.5),  # 8
    Part.Circle(App.Vector(-15, 15, 0), App.Vector(0, 0, 1), 2.5),  # 9
    Part.Circle(App.Vector(-5, -25, 0), App.Vector(0, 0, 1), 2.5),  # 10
    Part.Circle(App.Vector(-5, -15, 0), App.Vector(0, 0, 1), 2.5),  # 11
    Part.Circle(App.Vector(-5, -5, 0), App.Vector(0, 0, 1), 2.5),  # 12
    Part.Circle(App.Vector(-5, 5, 0), App.Vector(0, 0, 1), 2.5),  # 13
    Part.Circle(App.Vector(-5, 15, 0), App.Vector(0, 0, 1), 2.5),  # 14
    Part.Circle(App.Vector(5, -25, 0), App.Vector(0, 0, 1), 2.5),  # 15
    Part.Circle(App.Vector(5, -15, 0), App.Vector(0, 0, 1), 2.5),  # 16
    Part.Circle(App.Vector(5, -5, 0), App.Vector(0, 0, 1), 2.5),  # 17
    Part.Circle(App.Vector(5, 5, 0), App.Vector(0, 0, 1), 2.5),  # 18
    Part.Circle(App.Vector(5, 15, 0), App.Vector(0, 0, 1), 2.5),  # 19
    Part.Circle(App.Vector(15, -25, 0), App.Vector(0, 0, 1), 2.5),  # 20
    Part.Circle(App.Vector(15, -15, 0), App.Vector(0, 0, 1), 2.5),  # 21
    Part.Circle(App.Vector(15, -5, 0), App.Vector(0, 0, 1), 2.5),  # 22
    Part.Circle(App.Vector(15, 5, 0), App.Vector(0, 0, 1), 2.5),  # 23
    Part.Circle(App.Vector(15, 15, 0), App.Vector(0, 0, 1), 2.5),  # 24
    Part.Circle(App.Vector(-25, 25, 0), App.Vector(0, 0, 1), 2.5),  # 25
    Part.Circle(App.Vector(-15, 25, 0), App.Vector(0, 0, 1), 2.5),  # 26
    Part.Circle(App.Vector(-5, 25, 0), App.Vector(0, 0, 1), 2.5),  # 27
    Part.Circle(App.Vector(5, 25, 0), App.Vector(0, 0, 1), 2.5),  # 28
    Part.Circle(App.Vector(15, 25, 0), App.Vector(0, 0, 1), 2.5),  # 29
    Part.Circle(App.Vector(25, -25, 0), App.Vector(0, 0, 1), 2.5),  # 30
    Part.Circle(App.Vector(25, -15, 0), App.Vector(0, 0, 1), 2.5),  # 31
    Part.Circle(App.Vector(25, -5, 0), App.Vector(0, 0, 1), 2.5),  # 32
    Part.Circle(App.Vector(25, 5, 0), App.Vector(0, 0, 1), 2.5),  # 33
    Part.Circle(App.Vector(25, 15, 0), App.Vector(0, 0, 1), 2.5),  # 34
    Part.Circle(App.Vector(25, 25, 0), App.Vector(0, 0, 1), 2.5),  # 35
], False)
sketch4.addConstraint([
    Sketcher.Constraint("Equal", 0, 1),
    Sketcher.Constraint("Equal", 1, 2),
    Sketcher.Constraint("Equal", 2, 3),
    Sketcher.Constraint("Equal", 3, 4),
    Sketcher.Constraint("Equal", 4, 5),
    Sketcher.Constraint("Equal", 5, 6),
    Sketcher.Constraint("Equal", 6, 7),
    Sketcher.Constraint("Equal", 7, 8),
    Sketcher.Constraint("Equal", 8, 9),
    Sketcher.Constraint("Equal", 9, 10),
    Sketcher.Constraint("Equal", 10, 11),
    Sketcher.Constraint("Equal", 11, 12),
    Sketcher.Constraint("Equal", 12, 13),
    Sketcher.Constraint("Equal", 13, 14),
    Sketcher.Constraint("Equal", 14, 15),
    Sketcher.Constraint("Equal", 15, 16),
    Sketcher.Constraint("Equal", 16, 17),
    Sketcher.Constraint("Equal", 17, 18),
    Sketcher.Constraint("Equal", 18, 19),
    Sketcher.Constraint("Equal", 19, 20),
    Sketcher.Constraint("Equal", 20, 21),
    Sketcher.Constraint("Equal", 21, 22),
    Sketcher.Constraint("Equal", 22, 23),
    Sketcher.Constraint("Equal", 23, 24),
    Sketcher.Constraint("Equal", 24, 25),
    Sketcher.Constraint("Equal", 25, 26),
    Sketcher.Constraint("Equal", 26, 27),
    Sketcher.Constraint("Equal", 27, 28),
    Sketcher.Constraint("Equal", 28, 29),
    Sketcher.Constraint("Equal", 29, 30),
    Sketcher.Constraint("Equal", 30, 31),
    Sketcher.Constraint("Equal", 31, 32),
    Sketcher.Constraint("Equal", 32, 33),
    Sketcher.Constraint("Equal", 33, 34),
    Sketcher.Constraint("Equal", 34, 35),
    Sketcher.Constraint("Symmetric", 14, 3, 16, 3, -1, 1),
    Sketcher.Constraint("Symmetric", 13, 3, 17, 3, -1, 1),
    Sketcher.Constraint("Symmetric", 12, 3, 18, 3, -1, 1),
    Sketcher.Constraint("Symmetric", 11, 3, 19, 3, -1, 1),
    Sketcher.Constraint("Symmetric", 9, 3, 21, 3, -1, 1),
    Sketcher.Constraint("Symmetric", 8, 3, 22, 3, -1, 1),
    Sketcher.Constraint("Symmetric", 7, 3, 23, 3, -1, 1),
    Sketcher.Constraint("Symmetric", 6, 3, 24, 3, -1, 1),
    Sketcher.Constraint("Symmetric", 20, 3, 26, 3, -1, 1),
    Sketcher.Constraint("Symmetric", 15, 3, 27, 3, -1, 1),
    Sketcher.Constraint("Symmetric", 10, 3, 28, 3, -1, 1),
    Sketcher.Constraint("Symmetric", 5, 3, 29, 3, -1, 1),
    Sketcher.Constraint("Symmetric", 25, 3, 30, 3, -1, 1),
    Sketcher.Constraint("Symmetric", 4, 3, 31, 3, -1, 1),
    Sketcher.Constraint("Symmetric", 3, 3, 32, 3, -1, 1),
    Sketcher.Constraint("Symmetric", 2, 3, 33, 3, -1, 1),
    Sketcher.Constraint("Symmetric", 1, 3, 34, 3, -1, 1),
    Sketcher.Constraint("Symmetric", 0, 3, 35, 3, -1, 1),
    Sketcher.Constraint("Symmetric", 10, 3, 15, 3, -2),
    Sketcher.Constraint("Symmetric", 11, 3, 16, 3, -2),
    Sketcher.Constraint("Symmetric", 12, 3, 17, 3, -2),
    Sketcher.Constraint("Symmetric", 5, 3, 20, 3, -2),
    Sketcher.Constraint("Symmetric", 6, 3, 21, 3, -2),
    Sketcher.Constraint("Symmetric", 7, 3, 22, 3, -2),
    Sketcher.Constraint("Symmetric", 0, 3, 30, 3, -2),
    Sketcher.Constraint("Symmetric", 1, 3, 31, 3, -2),
    Sketcher.Constraint("Symmetric", 2, 3, 32, 3, -2),
    Sketcher.Constraint("Horizontal", 0, 3, 5, 3),
    Sketcher.Constraint("Horizontal", 1, 3, 6, 3),
    Sketcher.Constraint("Horizontal", 2, 3, 7, 3),
    Sketcher.Constraint("Horizontal", 5, 3, 10, 3),
    Sketcher.Constraint("Horizontal", 6, 3, 11, 3),
    Sketcher.Constraint("Horizontal", 7, 3, 12, 3),
    Sketcher.Constraint("Vertical", 0, 3, 1, 3),
    Sketcher.Constraint("Vertical", 1, 3, 2, 3),
    Sketcher.Constraint("Vertical", 5, 3, 6, 3),
    Sketcher.Constraint("Vertical", 6, 3, 7, 3),
    Sketcher.Constraint("Vertical", 10, 3, 11, 3),
    Sketcher.Constraint("Vertical", 11, 3, 12, 3),
    Sketcher.Constraint("Diameter", 0, 5.0),
    Sketcher.Constraint("DistanceY", 2, 3, -1, 1, 5.0),
    Sketcher.Constraint("DistanceX", 10, 3, -1, 1, 5.0),
    Sketcher.Constraint("DistanceY", 0, 3, 1, 3, 10.0),
    Sketcher.Constraint("DistanceY", 1, 3, 2, 3, 10.0),
    Sketcher.Constraint("DistanceX", 0, 3, 5, 3, 10.0),
    Sketcher.Constraint("DistanceX", 5, 3, 10, 3, 10.0),
])
sketch4.setExpression("Constraints[74]", "Params.sketch4_diameter")
pocket3 = body.newObject("PartDesign::Pocket", "Pocket002")
pocket3.Profile = sketch4
pocket3.setExpression("Length", "Params.pocket3_length")
pocket3.Reversed = True

doc.recompute()
